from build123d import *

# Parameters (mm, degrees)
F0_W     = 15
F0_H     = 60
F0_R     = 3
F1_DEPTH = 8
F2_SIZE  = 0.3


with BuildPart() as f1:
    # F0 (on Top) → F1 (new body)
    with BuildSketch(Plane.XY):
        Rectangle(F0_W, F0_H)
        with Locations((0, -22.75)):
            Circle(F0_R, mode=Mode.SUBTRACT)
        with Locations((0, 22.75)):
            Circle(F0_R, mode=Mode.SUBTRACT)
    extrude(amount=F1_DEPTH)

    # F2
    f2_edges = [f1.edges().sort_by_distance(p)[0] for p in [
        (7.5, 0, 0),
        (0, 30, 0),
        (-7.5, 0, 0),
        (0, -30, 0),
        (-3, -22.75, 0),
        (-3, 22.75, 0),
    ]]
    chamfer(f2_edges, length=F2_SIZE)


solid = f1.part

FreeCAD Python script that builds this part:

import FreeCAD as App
import Part
import Sketcher
from FreeCAD import Vector
Q = App.Units.Quantity


def edges_at(feature, points):
    """Names of the edges that pass closest to the given points."""
    edges = feature.Shape.Edges
    near = lambda p: min(range(len(edges)), key=lambda i: edges[i].distToShape(Part.Vertex(*p))[0])
    return sorted({f"Edge{near(p) + 1}" for p in points})

doc = App.newDocument("Part")
body = doc.addObject("PartDesign::Body", "Body")

# Sketch on XY plane
sketch1 = body.newObject("Sketcher::SketchObject", "Sketch")
sketch1.AttachmentSupport = (doc.getObject("XY_Plane"), [""])
sketch1.MapMode = "FlatFace"
sketch1.addGeometry(Part.LineSegment(Vector(-7.5, 30, 0), Vector(-7.5, -30, 0)), False)
sketch1.addGeometry(Part.LineSegment(Vector(-7.5, -30, 0), Vector(7.5, -30, 0)), False)
sketch1.addGeometry(Part.LineSegment(Vector(7.5, -30, 0), Vector(7.5, 30, 0)), False)
sketch1.addGeometry(Part.LineSegment(Vector(7.5, 30, 0), Vector(-7.5, 30, 0)), False)
sketch1.addGeometry(Part.Circle(Vector(0, -22.8, 0), Vector(0, 0, 1), 3), False)
sketch1.addGeometry(Part.Circle(Vector(0, 22.8, 0), Vector(0, 0, 1), 3), False)
sketch1.addConstraint(Sketcher.Constraint("Coincident", 0, 2, 1, 1))
sketch1.addConstraint(Sketcher.Constraint("Coincident", 1, 2, 2, 1))
sketch1.addConstraint(Sketcher.Constraint("Coincident", 2, 2, 3, 1))
sketch1.addConstraint(Sketcher.Constraint("Coincident", 3, 2, 0, 1))
sketch1.addConstraint(Sketcher.Constraint("Vertical", 0))
sketch1.addConstraint(Sketcher.Constraint("Horizontal", 1))
sketch1.addConstraint(Sketcher.Constraint("Vertical", 2))
sketch1.addConstraint(Sketcher.Constraint("Horizontal", 3))
sketch1.addConstraint(Sketcher.Constraint("Equal", 4, 5))
sketch1.addConstraint(Sketcher.Constraint("Symmetric", 4, 3, 5, 3, -1, 1))
sketch1.addConstraint(Sketcher.Constraint("Symmetric", 0, 2, 2, 2, -1, 1))
sketch1.addConstraint(Sketcher.Constraint("PointOnObject", 4, 3, -2))
sketch1.addConstraint(Sketcher.Constraint("Diameter", 4, Q("6 mm")))
sketch1.addConstraint(Sketcher.Constraint("DistanceX", 1, 1, 1, 2, Q("15 mm")))
sketch1.addConstraint(Sketcher.Constraint("DistanceY", 0, 2, 0, 1, Q("60 mm")))
sketch1.addConstraint(Sketcher.Constraint("DistanceY", 4, 3, 5, 3, Q("45.5 mm")))
pad1 = body.newObject("PartDesign::Pad", "Pad")
pad1.Profile = sketch1
pad1.Length = 8
doc.recompute()

chamfer = body.newObject("PartDesign::Chamfer", "Chamfer")
chamfer.Base = (pad1, edges_at(pad1, [
    (7.5, 0, 0),
    (0, 30, 0),
    (-7.5, 0, 0),
    (0, -30, 0),
    (-3, -22.75, 0),
    (-3, 22.75, 0),
]))
chamfer.Size = 0.3

doc.recompute()
